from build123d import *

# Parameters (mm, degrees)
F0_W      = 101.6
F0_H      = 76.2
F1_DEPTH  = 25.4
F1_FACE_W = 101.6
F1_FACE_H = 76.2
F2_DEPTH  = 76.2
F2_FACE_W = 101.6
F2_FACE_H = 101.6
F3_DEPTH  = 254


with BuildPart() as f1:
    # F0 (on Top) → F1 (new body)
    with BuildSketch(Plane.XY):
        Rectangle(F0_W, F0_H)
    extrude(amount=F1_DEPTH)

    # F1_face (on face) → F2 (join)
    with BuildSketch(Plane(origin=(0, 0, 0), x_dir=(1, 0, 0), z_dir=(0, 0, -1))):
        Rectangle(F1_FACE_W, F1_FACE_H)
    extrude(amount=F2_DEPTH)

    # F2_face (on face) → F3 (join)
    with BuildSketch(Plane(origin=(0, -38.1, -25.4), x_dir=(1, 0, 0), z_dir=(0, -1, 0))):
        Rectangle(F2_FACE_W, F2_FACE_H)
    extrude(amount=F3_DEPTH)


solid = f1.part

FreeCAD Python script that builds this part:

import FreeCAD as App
import Part
import Sketcher
from FreeCAD import Vector
Q = App.Units.Quantity

doc = App.newDocument("Part")
body = doc.addObject("PartDesign::Body", "Body")

# Sketch on XY plane
sketch1 = doc.addObject("Sketcher::SketchObject", "Sketch")
body.addObject(sketch1)
sketch1.AttachmentSupport = (doc.XY_Plane, [""])
sketch1.MapMode = "FlatFace"
sketch1.addGeometry(Part.LineSegment(Vector(-51, 38, 0), Vector(-51, -38, 0)), False)
sketch1.addGeometry(Part.LineSegment(Vector(-51, -38, 0), Vector(51, -38, 0)), False)
sketch1.addGeometry(Part.LineSegment(Vector(51, -38, 0), Vector(51, 38, 0)), False)
sketch1.addGeometry(Part.LineSegment(Vector(51, 38, 0), Vector(-51, 38, 0)), False)
sketch1.addConstraint(Sketcher.Constraint("Coincident", 0, 2, 1, 1))
sketch1.addConstraint(Sketcher.Constraint("Coincident", 1, 2, 2, 1))
sketch1.addConstraint(Sketcher.Constraint("Coincident", 2, 2, 3, 1))
sketch1.addConstraint(Sketcher.Constraint("Coincident", 3, 2, 0, 1))
sketch1.addConstraint(Sketcher.Constraint("Vertical", 0))
sketch1.addConstraint(Sketcher.Constraint("Horizontal", 1))
sketch1.addConstraint(Sketcher.Constraint("Vertical", 2))
sketch1.addConstraint(Sketcher.Constraint("Horizontal", 3))
sketch1.addConstraint(Sketcher.Constraint("Symmetric", 0, 2, 2, 2, -1, 1))
sketch1.addConstraint(Sketcher.Constraint("DistanceX", 1, 1, 1, 2, Q("4 in")))
sketch1.addConstraint(Sketcher.Constraint("DistanceY", 0, 2, 0, 1, Q("3 in")))
pad1 = doc.addObject("PartDesign::Pad", "Pad")
body.addObject(pad1)
pad1.Profile = sketch1
pad1.Length = Q("1 in")

# Sketch on XY plane
sketch2 = doc.addObject("Sketcher::SketchObject", "Sketch001")
body.addObject(sketch2)
sketch2.AttachmentSupport = (doc.XY_Plane, [""])
sketch2.MapMode = "FlatFace"
sketch2.addGeometry(Part.LineSegment(Vector(-51, -38, 0), Vector(-51, 38, 0)), False)
sketch2.addGeometry(Part.LineSegment(Vector(-51, 38, 0), Vector(51, 38, 0)), False)
sketch2.addGeometry(Part.LineSegment(Vector(51, 38, 0), Vector(51, -38, 0)), False)
sketch2.addGeometry(Part.LineSegment(Vector(51, -38, 0), Vector(-51, -38, 0)), False)
sketch2.addConstraint(Sketcher.Constraint("Coincident", 0, 2, 1, 1))
sketch2.addConstraint(Sketcher.Constraint("Coincident", 1, 2, 2, 1))
sketch2.addConstraint(Sketcher.Constraint("Coincident", 2, 2, 3, 1))
sketch2.addConstraint(Sketcher.Constraint("Coincident", 3, 2, 0, 1))
sketch2.addConstraint(Sketcher.Constraint("Vertical", 0))
sketch2.addConstraint(Sketcher.Constraint("Horizontal", 1))
sketch2.addConstraint(Sketcher.Constraint("Vertical", 2))
sketch2.addConstraint(Sketcher.Constraint("Horizontal", 3))
sketch2.addConstraint(Sketcher.Constraint("Symmetric", 0, 2, 2, 2, -1, 1))
sketch2.addConstraint(Sketcher.Constraint("DistanceX", 1, 1, 1, 2, Q("4 in")))
sketch2.addConstraint(Sketcher.Constraint("DistanceY", 0, 1, 0, 2, Q("3 in")))
pad2 = doc.addObject("PartDesign::Pad", "Pad001")
body.addObject(pad2)
pad2.Profile = sketch2
pad2.Length = Q("3 in")
pad2.Reversed = True

# Sketch on XZ plane
sketch3 = doc.addObject("Sketcher::SketchObject", "Sketch002")
body.addObject(sketch3)
sketch3.AttachmentSupport = (doc.XZ_Plane, [""])
sketch3.MapMode = "FlatFace"
sketch3.AttachmentOffset = App.Placement(Vector(0, 0, 1.5 * 25.4), App.Rotation())
sketch3.addGeometry(Part.LineSegment(Vector(-51, 25, 0), Vector(-51, -76, 0)), False)
sketch3.addGeometry(Part.LineSegment(Vector(-51, -76, 0), Vector(51, -76, 0)), False)
sketch3.addGeometry(Part.LineSegment(Vector(51, -76, 0), Vector(51, 25, 0)), False)
sketch3.addGeometry(Part.LineSegment(Vector(51, 25, 0), Vector(-51, 25, 0)), False)
sketch3.addConstraint(Sketcher.Constraint("Coincident", 0, 2, 1, 1))
sketch3.addConstraint(Sketcher.Constraint("Coincident", 1, 2, 2, 1))
sketch3.addConstraint(Sketcher.Constraint("Coincident", 2, 2, 3, 1))
sketch3.addConstraint(Sketcher.Constraint("Coincident", 3, 2, 0, 1))
sketch3.addConstraint(Sketcher.Constraint("Vertical", 0))
sketch3.addConstraint(Sketcher.Constraint("Horizontal", 1))
sketch3.addConstraint(Sketcher.Constraint("Vertical", 2))
sketch3.addConstraint(Sketcher.Constraint("Horizontal", 3))
sketch3.addConstraint(Sketcher.Constraint("Equal", 3, 0))
sketch3.addConstraint(Sketcher.Constraint("DistanceX", 1, 1, 1, 2, Q("4 in")))
sketch3.addConstraint(Sketcher.Constraint("DistanceX", 0, 2, -1, 1, Q("2 in")))
sketch3.addConstraint(Sketcher.Constraint("DistanceY", 0, 2, -1, 1, Q("3 in")))
pad3 = doc.addObject("PartDesign::Pad", "Pad002")
body.addObject(pad3)
pad3.Profile = sketch3
pad3.Length = Q("10 in")

doc.recompute()
